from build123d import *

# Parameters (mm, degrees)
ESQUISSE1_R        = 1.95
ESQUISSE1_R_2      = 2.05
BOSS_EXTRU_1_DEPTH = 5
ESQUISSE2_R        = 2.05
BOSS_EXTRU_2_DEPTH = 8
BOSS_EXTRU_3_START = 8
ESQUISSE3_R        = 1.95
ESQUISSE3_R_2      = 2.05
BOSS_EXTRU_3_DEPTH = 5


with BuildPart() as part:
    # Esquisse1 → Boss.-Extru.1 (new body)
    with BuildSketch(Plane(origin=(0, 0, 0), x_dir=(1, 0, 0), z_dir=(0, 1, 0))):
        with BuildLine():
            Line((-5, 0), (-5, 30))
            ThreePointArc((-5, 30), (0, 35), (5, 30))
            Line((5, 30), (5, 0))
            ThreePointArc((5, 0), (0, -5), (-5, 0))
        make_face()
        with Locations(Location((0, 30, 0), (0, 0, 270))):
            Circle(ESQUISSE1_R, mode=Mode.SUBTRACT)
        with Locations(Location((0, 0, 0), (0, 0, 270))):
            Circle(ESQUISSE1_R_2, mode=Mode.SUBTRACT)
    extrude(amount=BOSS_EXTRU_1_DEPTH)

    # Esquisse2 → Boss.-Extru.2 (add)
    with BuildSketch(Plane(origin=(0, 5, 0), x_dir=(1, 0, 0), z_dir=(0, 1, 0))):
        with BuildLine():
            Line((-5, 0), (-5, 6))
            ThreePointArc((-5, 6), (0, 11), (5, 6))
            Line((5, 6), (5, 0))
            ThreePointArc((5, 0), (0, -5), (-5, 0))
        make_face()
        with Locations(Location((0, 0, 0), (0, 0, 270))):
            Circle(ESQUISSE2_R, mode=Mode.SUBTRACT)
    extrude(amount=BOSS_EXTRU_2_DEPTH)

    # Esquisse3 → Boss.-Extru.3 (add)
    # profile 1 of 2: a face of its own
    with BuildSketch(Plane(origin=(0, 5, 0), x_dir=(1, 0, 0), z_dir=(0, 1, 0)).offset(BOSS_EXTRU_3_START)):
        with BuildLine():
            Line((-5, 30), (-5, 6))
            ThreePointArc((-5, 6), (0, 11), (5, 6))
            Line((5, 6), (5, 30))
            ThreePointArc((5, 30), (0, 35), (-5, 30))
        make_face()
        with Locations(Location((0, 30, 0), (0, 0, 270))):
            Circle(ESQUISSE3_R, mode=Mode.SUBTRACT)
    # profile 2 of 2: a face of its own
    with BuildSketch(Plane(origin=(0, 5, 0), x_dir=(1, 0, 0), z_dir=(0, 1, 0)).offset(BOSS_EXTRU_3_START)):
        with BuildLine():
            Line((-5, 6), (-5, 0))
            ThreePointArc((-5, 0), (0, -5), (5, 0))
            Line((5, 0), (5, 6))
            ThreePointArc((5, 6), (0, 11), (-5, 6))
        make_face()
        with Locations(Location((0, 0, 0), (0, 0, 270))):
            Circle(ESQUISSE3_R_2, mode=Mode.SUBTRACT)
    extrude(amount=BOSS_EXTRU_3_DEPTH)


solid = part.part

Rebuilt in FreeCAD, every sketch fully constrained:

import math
import FreeCAD as App
import Part
import Sketcher

V = App.Vector

doc = App.newDocument("Part")
body = doc.addObject("PartDesign::Body", "Body")

# Sketch on XZ plane
sketch1 = body.newObject("Sketcher::SketchObject", "Sketch")
sketch1.AttachmentSupport = (doc.getObject("XZ_Plane"), [""])
sketch1.MapMode = "FlatFace"
sketch1.addGeometry(Part.LineSegment(V(-5, -30, 0), V(-5, 0, 0)), False)
sketch1.addGeometry(Part.ArcOfCircle(Part.Circle(V(0, 0, 0), V(0, 0, 1), 5), math.radians(0), math.radians(180)), False)
sketch1.addGeometry(Part.LineSegment(V(5, 0, 0), V(5, -30, 0)), False)
sketch1.addGeometry(Part.ArcOfCircle(Part.Circle(V(0, -30, 0), V(0, 0, 1), 5), math.radians(180), math.radians(360)), False)
sketch1.addGeometry(Part.Circle(V(0, 0, 0), V(0, 0, 1), 2), False)
sketch1.addGeometry(Part.Circle(V(0, -30, 0), V(0, 0, 1), 1.9), False)
sketch1.addConstraint(Sketcher.Constraint("Tangent", 0, 2, 1, 2))
sketch1.addConstraint(Sketcher.Constraint("Tangent", 1, 1, 2, 1))
sketch1.addConstraint(Sketcher.Constraint("Tangent", 2, 2, 3, 2))
sketch1.addConstraint(Sketcher.Constraint("Tangent", 3, 1, 0, 1))
sketch1.addConstraint(Sketcher.Constraint("Vertical", 0))
sketch1.addConstraint(Sketcher.Constraint("Vertical", 2))
sketch1.addConstraint(Sketcher.Constraint("Coincident", 1, 3, -1, 1))
sketch1.addConstraint(Sketcher.Constraint("Coincident", 4, 3, -1, 1))
sketch1.addConstraint(Sketcher.Constraint("Coincident", 5, 3, 3, 3))
sketch1.addConstraint(Sketcher.Constraint("Radius", 1, 5.0))
sketch1.addConstraint(Sketcher.Constraint("Diameter", 4, 4.1))
sketch1.addConstraint(Sketcher.Constraint("Diameter", 5, 3.9))
sketch1.addConstraint(Sketcher.Constraint("DistanceY", 0, 1, 0, 2, 30.0))
pad1 = body.newObject("PartDesign::Pad", "Pad")
pad1.Profile = sketch1
pad1.Length = 5
pad1.Reversed = True

# Sketch on XZ plane
sketch2 = body.newObject("Sketcher::SketchObject", "Sketch001")
sketch2.AttachmentSupport = (doc.getObject("XZ_Plane"), [""])
sketch2.MapMode = "FlatFace"
sketch2.AttachmentOffset = App.Placement(V(0, 0, -5), App.Rotation())
sketch2.addGeometry(Part.LineSegment(V(-5, -6, 0), V(-5, 0, 0)), False)
sketch2.addGeometry(Part.ArcOfCircle(Part.Circle(V(0, 0, 0), V(0, 0, 1), 5), math.radians(0), math.radians(180)), False)
sketch2.addGeometry(Part.LineSegment(V(5, 0, 0), V(5, -6, 0)), False)
sketch2.addGeometry(Part.ArcOfCircle(Part.Circle(V(0, -6, 0), V(0, 0, 1), 5), math.radians(180), math.radians(360)), False)
sketch2.addGeometry(Part.Circle(V(0, 0, 0), V(0, 0, 1), 2), False)
sketch2.addConstraint(Sketcher.Constraint("Tangent", 0, 2, 1, 2))
sketch2.addConstraint(Sketcher.Constraint("Tangent", 1, 1, 2, 1))
sketch2.addConstraint(Sketcher.Constraint("Tangent", 2, 2, 3, 2))
sketch2.addConstraint(Sketcher.Constraint("Tangent", 3, 1, 0, 1))
sketch2.addConstraint(Sketcher.Constraint("Vertical", 0))
sketch2.addConstraint(Sketcher.Constraint("Vertical", 2))
sketch2.addConstraint(Sketcher.Constraint("Coincident", 1, 3, -1, 1))
sketch2.addConstraint(Sketcher.Constraint("Coincident", 4, 3, -1, 1))
sketch2.addConstraint(Sketcher.Constraint("Radius", 1, 5.0))
sketch2.addConstraint(Sketcher.Constraint("Diameter", 4, 4.1))
sketch2.addConstraint(Sketcher.Constraint("DistanceY", 0, 1, 0, 2, 6.0))
pad2 = body.newObject("PartDesign::Pad", "Pad001")
pad2.Profile = sketch2
pad2.Length = 8
pad2.Reversed = True

# Sketch on XZ plane
sketch3 = body.newObject("Sketcher::SketchObject", "Sketch002")
sketch3.AttachmentSupport = (doc.getObject("XZ_Plane"), [""])
sketch3.MapMode = "FlatFace"
sketch3.AttachmentOffset = App.Placement(V(0, 0, -13), App.Rotation())
sketch3.addGeometry(Part.LineSegment(V(-5, -30, 0), V(-5, 0, 0)), False)
sketch3.addGeometry(Part.ArcOfCircle(Part.Circle(V(0, 0, 0), V(0, 0, 1), 5), math.radians(0), math.radians(180)), False)
sketch3.addGeometry(Part.LineSegment(V(5, 0, 0), V(5, -30, 0)), False)
sketch3.addGeometry(Part.ArcOfCircle(Part.Circle(V(0, -30, 0), V(0, 0, 1), 5), math.radians(180), math.radians(360)), False)
sketch3.addGeometry(Part.Circle(V(0, -30, 0), V(0, 0, 1), 1.9), False)
sketch3.addGeometry(Part.Circle(V(0, 0, 0), V(0, 0, 1), 2), False)
sketch3.addConstraint(Sketcher.Constraint("Tangent", 0, 2, 1, 2))
sketch3.addConstraint(Sketcher.Constraint("Tangent", 1, 1, 2, 1))
sketch3.addConstraint(Sketcher.Constraint("Tangent", 2, 2, 3, 2))
sketch3.addConstraint(Sketcher.Constraint("Tangent", 3, 1, 0, 1))
sketch3.addConstraint(Sketcher.Constraint("Vertical", 0))
sketch3.addConstraint(Sketcher.Constraint("Vertical", 2))
sketch3.addConstraint(Sketcher.Constraint("Coincident", 1, 3, -1, 1))
sketch3.addConstraint(Sketcher.Constraint("Coincident", 5, 3, -1, 1))
sketch3.addConstraint(Sketcher.Constraint("Coincident", 4, 3, 3, 3))
sketch3.addConstraint(Sketcher.Constraint("Radius", 1, 5.0))
sketch3.addConstraint(Sketcher.Constraint("Diameter", 4, 3.9))
sketch3.addConstraint(Sketcher.Constraint("Diameter", 5, 4.1))
sketch3.addConstraint(Sketcher.Constraint("DistanceY", 0, 1, 0, 2, 30.0))
pad3 = body.newObject("PartDesign::Pad", "Pad002")
pad3.Profile = sketch3
pad3.Length = 5
pad3.Reversed = True

doc.recompute()
